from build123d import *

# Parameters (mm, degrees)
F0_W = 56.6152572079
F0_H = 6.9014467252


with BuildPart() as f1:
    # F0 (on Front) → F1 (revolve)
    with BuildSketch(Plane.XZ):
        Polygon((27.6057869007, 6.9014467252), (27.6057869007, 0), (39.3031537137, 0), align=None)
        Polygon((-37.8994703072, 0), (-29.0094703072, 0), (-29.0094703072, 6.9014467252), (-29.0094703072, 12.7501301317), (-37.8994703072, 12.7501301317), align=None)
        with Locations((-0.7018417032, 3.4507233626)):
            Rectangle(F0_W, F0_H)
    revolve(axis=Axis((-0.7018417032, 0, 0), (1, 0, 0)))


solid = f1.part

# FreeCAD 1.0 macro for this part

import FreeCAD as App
import Part
import Sketcher
from FreeCAD import Vector
Q = App.Units.Quantity


def add_polygon(sketch, points):
    """Adds a closed chain of lines whose ends are joined by coincident constraints."""
    first, n = sketch.GeometryCount, len(points)
    for a, b in zip(points, points[1:] + points[:1]):
        sketch.addGeometry(Part.LineSegment(App.Vector(*a, 0), App.Vector(*b, 0)), False)
    for i in range(n):
        sketch.addConstraint(Sketcher.Constraint("Coincident", first + i, 2, first + (i + 1) % n, 1))

doc = App.newDocument("Part")
body = doc.addObject("PartDesign::Body", "Body")

sketch1 = doc.addObject("Sketcher::SketchObject", "Sketch")
body.addObject(sketch1)
sketch1.AttachmentSupport = (doc.XZ_Plane, [""])
sketch1.MapMode = "FlatFace"
add_polygon(sketch1, [(39, 0), (28, 7), (-29, 7), (-29, 13), (-38, 13), (-38, 0)])
sketch1.addConstraint(Sketcher.Constraint("Horizontal", 1))
sketch1.addConstraint(Sketcher.Constraint("Vertical", 2))
sketch1.addConstraint(Sketcher.Constraint("Horizontal", 3))
sketch1.addConstraint(Sketcher.Constraint("Vertical", 4))
sketch1.addConstraint(Sketcher.Constraint("Horizontal", 5))
sketch1.addConstraint(Sketcher.Constraint("PointOnObject", 4, 2, -1))
sketch1.addConstraint(Sketcher.Constraint("DistanceX", 3, 2, 3, 1, Q("0.35 in")))
sketch1.addConstraint(Sketcher.Constraint("DistanceY", 4, 2, 4, 1, Q("12.75013 mm")))
sketch1.addConstraint(Sketcher.Constraint("DistanceX", 1, 2, 1, 1, Q("56.615257 mm")))
sketch1.addConstraint(Sketcher.Constraint("DistanceX", 5, 1, 5, 2, Q("77.202624 mm")))
sketch1.addConstraint(Sketcher.Constraint("DistanceY", 2, 1, 2, 2, Q("5.848683 mm")))
sketch1.addConstraint(Sketcher.Constraint("DistanceX", 1, 2, -1, 1, Q("29.00947 mm")))
revolution = doc.addObject("PartDesign::Revolution", "Revolution")
body.addObject(revolution)
revolution.Profile = sketch1
revolution.ReferenceAxis = (sketch1, ["H_Axis"])
revolution.Angle = 360

doc.recompute()
